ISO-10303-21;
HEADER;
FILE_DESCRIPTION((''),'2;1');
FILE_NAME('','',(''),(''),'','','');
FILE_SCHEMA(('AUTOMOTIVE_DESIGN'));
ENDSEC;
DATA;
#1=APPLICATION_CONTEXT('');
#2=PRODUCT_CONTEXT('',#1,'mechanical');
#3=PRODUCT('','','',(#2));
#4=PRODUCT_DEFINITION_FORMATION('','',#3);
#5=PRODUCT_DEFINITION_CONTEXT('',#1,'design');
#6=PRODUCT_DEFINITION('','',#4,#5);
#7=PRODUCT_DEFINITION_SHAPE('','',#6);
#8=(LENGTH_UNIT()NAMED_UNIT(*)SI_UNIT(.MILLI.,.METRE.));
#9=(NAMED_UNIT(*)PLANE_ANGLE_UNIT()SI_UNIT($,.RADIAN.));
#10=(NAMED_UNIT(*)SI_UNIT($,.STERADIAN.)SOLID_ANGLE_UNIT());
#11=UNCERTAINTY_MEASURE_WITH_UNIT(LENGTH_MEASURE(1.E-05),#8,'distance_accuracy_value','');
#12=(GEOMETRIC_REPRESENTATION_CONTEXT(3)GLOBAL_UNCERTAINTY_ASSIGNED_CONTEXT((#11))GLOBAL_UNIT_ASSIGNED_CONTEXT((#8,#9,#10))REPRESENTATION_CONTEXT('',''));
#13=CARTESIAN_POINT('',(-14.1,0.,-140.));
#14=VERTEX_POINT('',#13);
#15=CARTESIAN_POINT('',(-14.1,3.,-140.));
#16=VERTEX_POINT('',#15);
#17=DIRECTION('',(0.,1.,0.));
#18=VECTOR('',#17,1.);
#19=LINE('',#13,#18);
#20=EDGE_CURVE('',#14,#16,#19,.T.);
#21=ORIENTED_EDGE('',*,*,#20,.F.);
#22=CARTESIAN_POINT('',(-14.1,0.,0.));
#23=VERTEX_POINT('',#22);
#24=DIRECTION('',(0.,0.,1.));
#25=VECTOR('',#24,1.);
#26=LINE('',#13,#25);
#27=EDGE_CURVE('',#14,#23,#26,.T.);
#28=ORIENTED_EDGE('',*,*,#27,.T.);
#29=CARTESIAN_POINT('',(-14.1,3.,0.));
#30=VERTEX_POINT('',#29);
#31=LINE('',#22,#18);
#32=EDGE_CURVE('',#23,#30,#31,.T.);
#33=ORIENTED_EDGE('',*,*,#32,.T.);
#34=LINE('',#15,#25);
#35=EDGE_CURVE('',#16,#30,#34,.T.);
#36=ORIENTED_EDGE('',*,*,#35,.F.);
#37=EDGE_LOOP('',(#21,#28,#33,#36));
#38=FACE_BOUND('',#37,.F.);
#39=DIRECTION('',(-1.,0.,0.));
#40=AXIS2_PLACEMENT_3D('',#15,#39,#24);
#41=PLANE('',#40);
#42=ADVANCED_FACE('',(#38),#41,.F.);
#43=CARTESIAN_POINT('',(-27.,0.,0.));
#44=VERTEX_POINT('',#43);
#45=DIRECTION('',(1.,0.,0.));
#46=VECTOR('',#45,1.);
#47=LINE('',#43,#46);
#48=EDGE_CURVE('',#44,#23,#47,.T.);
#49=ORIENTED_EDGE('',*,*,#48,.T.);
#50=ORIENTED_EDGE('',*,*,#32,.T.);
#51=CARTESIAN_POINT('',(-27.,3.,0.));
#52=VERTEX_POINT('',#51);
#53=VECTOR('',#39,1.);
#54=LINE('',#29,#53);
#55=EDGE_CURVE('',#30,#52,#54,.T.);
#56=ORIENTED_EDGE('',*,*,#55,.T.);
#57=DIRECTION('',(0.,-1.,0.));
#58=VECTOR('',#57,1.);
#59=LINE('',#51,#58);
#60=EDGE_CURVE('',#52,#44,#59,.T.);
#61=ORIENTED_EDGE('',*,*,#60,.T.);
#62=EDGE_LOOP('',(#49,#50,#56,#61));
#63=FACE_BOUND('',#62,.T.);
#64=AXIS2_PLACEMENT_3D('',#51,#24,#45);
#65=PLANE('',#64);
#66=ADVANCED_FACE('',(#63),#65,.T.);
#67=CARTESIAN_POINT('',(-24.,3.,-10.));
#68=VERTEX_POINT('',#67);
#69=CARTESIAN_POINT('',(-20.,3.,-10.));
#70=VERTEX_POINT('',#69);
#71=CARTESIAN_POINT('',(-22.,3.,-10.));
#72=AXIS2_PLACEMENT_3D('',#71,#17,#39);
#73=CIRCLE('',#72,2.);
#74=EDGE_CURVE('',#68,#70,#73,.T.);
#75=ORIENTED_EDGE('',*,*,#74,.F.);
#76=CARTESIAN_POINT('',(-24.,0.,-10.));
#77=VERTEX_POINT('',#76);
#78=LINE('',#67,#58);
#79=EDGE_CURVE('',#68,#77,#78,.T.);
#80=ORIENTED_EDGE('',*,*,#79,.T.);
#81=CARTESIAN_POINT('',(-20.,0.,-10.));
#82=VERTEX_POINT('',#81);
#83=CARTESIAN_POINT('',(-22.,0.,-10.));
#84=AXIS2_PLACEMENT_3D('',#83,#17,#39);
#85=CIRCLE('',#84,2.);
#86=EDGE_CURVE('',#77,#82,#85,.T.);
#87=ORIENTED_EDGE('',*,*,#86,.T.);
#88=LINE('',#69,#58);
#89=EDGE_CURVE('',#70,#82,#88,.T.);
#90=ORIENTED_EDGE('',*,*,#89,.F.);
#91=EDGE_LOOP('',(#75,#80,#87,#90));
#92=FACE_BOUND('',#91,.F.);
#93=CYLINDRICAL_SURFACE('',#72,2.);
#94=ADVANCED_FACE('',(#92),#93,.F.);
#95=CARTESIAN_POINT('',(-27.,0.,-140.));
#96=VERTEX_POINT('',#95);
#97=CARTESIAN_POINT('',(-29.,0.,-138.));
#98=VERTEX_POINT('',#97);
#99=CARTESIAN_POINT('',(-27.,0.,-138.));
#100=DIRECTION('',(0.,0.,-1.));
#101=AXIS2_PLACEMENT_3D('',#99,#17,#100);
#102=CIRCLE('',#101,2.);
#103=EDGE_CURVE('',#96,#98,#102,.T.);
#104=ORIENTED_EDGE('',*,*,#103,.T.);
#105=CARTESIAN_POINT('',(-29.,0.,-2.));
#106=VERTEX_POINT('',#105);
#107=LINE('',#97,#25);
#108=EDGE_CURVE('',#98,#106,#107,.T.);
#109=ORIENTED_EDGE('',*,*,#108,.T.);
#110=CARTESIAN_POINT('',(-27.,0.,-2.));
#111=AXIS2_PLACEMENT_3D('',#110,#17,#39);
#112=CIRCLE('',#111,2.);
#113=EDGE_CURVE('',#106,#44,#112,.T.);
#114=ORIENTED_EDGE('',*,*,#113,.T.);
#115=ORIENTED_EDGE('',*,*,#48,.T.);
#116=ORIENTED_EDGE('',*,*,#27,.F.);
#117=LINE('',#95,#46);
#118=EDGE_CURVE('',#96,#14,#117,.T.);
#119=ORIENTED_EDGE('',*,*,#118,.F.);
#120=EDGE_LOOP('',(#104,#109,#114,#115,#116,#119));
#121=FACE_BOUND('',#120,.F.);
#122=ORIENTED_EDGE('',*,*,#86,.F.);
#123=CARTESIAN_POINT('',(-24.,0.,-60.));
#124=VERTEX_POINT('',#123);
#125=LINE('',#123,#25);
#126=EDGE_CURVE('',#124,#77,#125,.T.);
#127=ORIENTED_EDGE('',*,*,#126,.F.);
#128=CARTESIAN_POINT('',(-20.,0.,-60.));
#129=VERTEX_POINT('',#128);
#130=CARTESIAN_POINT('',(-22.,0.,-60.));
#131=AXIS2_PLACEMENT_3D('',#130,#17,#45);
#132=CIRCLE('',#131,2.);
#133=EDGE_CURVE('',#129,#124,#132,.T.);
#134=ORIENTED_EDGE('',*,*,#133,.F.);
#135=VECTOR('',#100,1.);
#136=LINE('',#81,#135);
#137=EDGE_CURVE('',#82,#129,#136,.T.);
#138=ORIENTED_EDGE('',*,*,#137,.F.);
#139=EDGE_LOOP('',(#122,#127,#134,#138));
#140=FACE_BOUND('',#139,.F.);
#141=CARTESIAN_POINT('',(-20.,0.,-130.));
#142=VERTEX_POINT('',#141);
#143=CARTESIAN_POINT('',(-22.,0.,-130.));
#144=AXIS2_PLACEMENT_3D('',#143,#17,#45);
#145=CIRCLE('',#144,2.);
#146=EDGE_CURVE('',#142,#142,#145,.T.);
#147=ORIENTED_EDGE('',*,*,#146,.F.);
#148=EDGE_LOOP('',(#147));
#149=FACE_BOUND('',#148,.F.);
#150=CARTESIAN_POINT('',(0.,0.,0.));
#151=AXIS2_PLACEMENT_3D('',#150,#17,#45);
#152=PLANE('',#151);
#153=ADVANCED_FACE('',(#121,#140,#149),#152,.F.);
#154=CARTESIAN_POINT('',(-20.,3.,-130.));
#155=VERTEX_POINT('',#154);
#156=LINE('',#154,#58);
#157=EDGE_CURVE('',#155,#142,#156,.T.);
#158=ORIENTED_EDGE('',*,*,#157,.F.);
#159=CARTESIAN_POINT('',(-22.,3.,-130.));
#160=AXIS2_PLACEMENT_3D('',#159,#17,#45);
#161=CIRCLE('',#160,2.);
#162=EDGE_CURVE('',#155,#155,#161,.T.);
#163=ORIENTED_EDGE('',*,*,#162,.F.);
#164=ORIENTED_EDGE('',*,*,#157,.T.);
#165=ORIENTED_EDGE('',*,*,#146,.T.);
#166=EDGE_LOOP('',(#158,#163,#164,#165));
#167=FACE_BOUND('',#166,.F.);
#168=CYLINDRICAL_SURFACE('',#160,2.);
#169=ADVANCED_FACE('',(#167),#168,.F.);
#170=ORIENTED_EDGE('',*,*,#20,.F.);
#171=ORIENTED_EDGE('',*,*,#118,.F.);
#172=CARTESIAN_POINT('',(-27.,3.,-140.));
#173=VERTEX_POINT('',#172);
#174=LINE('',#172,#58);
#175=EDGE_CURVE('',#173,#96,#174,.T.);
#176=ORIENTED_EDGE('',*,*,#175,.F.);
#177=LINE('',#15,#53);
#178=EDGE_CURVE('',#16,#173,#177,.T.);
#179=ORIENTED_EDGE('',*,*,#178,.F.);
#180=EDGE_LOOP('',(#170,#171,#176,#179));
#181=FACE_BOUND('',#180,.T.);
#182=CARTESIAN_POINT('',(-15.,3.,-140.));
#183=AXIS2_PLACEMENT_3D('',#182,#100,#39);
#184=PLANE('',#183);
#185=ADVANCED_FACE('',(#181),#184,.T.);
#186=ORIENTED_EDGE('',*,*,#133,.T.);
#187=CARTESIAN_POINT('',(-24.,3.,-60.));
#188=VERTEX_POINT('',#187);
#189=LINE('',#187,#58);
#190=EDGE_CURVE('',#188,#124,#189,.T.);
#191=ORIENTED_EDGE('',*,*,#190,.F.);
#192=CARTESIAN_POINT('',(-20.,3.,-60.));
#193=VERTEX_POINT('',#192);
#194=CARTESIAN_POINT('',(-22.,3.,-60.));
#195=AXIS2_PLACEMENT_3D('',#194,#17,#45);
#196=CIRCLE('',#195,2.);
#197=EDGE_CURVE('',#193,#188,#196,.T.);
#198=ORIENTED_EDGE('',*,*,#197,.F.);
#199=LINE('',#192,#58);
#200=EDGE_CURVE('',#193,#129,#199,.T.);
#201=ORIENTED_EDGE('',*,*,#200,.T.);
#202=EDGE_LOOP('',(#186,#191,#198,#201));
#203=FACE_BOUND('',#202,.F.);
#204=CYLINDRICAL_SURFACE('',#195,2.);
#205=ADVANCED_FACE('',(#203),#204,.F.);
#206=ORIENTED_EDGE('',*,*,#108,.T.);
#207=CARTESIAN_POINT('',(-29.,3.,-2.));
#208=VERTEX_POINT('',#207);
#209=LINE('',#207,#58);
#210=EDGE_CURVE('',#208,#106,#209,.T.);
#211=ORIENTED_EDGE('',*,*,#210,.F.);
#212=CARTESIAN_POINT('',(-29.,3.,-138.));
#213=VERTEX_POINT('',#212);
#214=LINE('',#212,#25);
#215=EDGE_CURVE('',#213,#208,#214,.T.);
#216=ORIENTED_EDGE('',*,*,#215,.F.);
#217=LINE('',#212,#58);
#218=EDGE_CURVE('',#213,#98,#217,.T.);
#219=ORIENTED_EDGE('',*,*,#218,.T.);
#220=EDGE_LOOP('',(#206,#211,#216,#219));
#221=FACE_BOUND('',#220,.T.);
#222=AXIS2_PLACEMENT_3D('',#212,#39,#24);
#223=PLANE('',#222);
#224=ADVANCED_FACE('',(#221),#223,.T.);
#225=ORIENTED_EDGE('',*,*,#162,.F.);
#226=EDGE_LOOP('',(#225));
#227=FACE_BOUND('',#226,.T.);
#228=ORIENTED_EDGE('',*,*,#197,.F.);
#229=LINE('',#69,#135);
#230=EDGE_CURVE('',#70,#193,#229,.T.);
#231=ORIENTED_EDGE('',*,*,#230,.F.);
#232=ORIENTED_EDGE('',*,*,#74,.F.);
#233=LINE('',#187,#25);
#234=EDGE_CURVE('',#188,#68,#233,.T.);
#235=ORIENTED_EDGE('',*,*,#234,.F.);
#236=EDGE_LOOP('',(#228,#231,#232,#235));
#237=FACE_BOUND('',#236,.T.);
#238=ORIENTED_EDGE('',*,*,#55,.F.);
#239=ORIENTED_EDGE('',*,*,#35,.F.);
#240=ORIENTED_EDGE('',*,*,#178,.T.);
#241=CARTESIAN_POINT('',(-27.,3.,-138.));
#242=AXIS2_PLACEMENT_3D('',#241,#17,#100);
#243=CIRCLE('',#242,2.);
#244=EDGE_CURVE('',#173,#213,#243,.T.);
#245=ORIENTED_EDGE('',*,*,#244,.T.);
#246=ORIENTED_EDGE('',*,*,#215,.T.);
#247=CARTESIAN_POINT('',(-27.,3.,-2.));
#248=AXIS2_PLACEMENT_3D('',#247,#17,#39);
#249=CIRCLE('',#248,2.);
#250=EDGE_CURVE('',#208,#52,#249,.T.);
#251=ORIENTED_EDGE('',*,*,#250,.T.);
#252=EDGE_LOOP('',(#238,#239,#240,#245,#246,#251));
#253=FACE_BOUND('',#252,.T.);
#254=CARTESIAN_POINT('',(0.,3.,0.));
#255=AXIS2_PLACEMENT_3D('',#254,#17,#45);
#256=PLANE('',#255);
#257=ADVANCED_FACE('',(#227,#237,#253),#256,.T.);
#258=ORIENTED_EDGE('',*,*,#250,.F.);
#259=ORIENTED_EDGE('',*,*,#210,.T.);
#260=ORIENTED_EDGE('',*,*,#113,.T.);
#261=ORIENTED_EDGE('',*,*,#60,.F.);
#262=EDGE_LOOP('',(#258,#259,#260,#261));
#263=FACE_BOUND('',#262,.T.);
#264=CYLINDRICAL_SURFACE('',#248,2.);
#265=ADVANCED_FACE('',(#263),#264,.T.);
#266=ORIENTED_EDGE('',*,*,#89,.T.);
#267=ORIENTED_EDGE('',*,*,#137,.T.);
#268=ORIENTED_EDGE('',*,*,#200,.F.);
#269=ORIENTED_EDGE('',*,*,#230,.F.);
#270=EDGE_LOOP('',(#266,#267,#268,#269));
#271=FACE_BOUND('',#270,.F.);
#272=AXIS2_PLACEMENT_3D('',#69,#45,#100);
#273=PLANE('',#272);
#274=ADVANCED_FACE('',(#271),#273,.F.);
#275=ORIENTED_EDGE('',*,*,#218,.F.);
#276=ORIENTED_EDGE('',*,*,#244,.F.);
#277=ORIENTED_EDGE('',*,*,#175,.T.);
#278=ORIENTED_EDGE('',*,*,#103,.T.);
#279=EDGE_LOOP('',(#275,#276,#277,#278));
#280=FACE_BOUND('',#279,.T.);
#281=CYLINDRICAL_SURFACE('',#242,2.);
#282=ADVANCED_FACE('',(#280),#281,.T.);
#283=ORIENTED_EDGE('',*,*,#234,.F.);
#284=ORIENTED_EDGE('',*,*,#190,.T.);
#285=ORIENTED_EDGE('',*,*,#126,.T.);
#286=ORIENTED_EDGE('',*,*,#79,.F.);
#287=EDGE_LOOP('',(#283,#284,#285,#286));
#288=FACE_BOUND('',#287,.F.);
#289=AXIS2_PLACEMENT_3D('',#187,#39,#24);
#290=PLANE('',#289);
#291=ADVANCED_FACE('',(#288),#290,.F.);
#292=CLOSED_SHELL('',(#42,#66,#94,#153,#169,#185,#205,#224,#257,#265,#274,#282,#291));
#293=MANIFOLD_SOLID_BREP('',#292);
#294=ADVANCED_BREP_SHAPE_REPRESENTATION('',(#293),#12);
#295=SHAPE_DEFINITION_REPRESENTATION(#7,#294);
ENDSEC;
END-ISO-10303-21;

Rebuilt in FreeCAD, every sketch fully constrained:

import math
import FreeCAD as App
import Part
import Sketcher


def add_polygon(sketch, points):
    """Adds a closed chain of lines whose ends are joined by coincident constraints."""
    first, n = sketch.GeometryCount, len(points)
    for a, b in zip(points, points[1:] + points[:1]):
        sketch.addGeometry(Part.LineSegment(App.Vector(*a, 0), App.Vector(*b, 0)), False)
    for i in range(n):
        sketch.addConstraint(Sketcher.Constraint("Coincident", first + i, 2, first + (i + 1) % n, 1))

doc = App.newDocument("Part")
params = doc.addObject("Spreadsheet::Sheet", "Params")
for row, (alias, value) in enumerate([
    ("sketch1_width", "6 mm"),
    ("sketch1_height", "140 mm"),
    ("sketch1_height2", "3 mm"),
    ("sketch1_width2", "8.1 mm"),
    ("pad1_length", "3 mm"),
    ("sketch2_width", "3 mm"),
    ("sketch2_height", "6 mm"),
    ("pocket1_length", "3 mm"),
    ("sketch3_diameter", "4 mm"),
    ("sketch3_height", "50 mm"),
    ("sketch3_height2", "140 mm"),
    ("pad2_length", "3 mm"),
    ("sketch4_width", "6 mm"),
    ("sketch4_height", "140 mm"),
    ("pocket2_length", "3 mm"),
    ("sketch5_width", "3 mm"),
    ("sketch5_height", "146 mm"),
    ("sketch5_height2", "6 mm"),
    ("sketch5_width2", "8.1 mm"),
    ("pocket3_length", "3 mm"),
], start=1):
    params.set(f"A{row}", alias)
    params.set(f"B{row}", "=" + value)
    params.setAlias(f"B{row}", alias)

body = doc.addObject("PartDesign::Body", "Body")

# Sketch on XZ plane
sketch1 = body.newObject("Sketcher::SketchObject", "Sketch")
sketch1.AttachmentSupport = (doc.getObject("XZ_Plane"), [""])
sketch1.MapMode = "FlatFace"
add_polygon(sketch1, [(-6, 0), (0, 0), (0, -140), (-6, -140), (-6, -143), (-14.1, -143), (-14.1, -140), (-15, -140), (-15, 0), (-14.1, 0), (-14.1, 3), (-6, 3)])  # lines 0-11
sketch1.addConstraint([
    Sketcher.Constraint("Horizontal", 0),
    Sketcher.Constraint("Vertical", 1),
    Sketcher.Constraint("Horizontal", 2),
    Sketcher.Constraint("Vertical", 3),
    Sketcher.Constraint("Horizontal", 4),
    Sketcher.Constraint("Vertical", 5),
    Sketcher.Constraint("Horizontal", 6),
    Sketcher.Constraint("Vertical", 7),
    Sketcher.Constraint("Horizontal", 8),
    Sketcher.Constraint("Vertical", 9),
    Sketcher.Constraint("Horizontal", 10),
    Sketcher.Constraint("Vertical", 11),
    Sketcher.Constraint("Coincident", 0, 2, -1, 1),
    Sketcher.Constraint("PointOnObject", 7, 2, -1),
    Sketcher.Constraint("Horizontal", 2, 2, 5, 2),
    Sketcher.Constraint("Vertical", 5, 2, 8, 2),
    Sketcher.Constraint("Vertical", 3, 2, 10, 2),
    Sketcher.Constraint("Equal", 5, 9),
    Sketcher.Constraint("DistanceX", 0, 1, 0, 2, 6.0),
    Sketcher.Constraint("DistanceY", 1, 2, 1, 1, 140.0),
    Sketcher.Constraint("DistanceY", 3, 2, 3, 1, 3.0),
    Sketcher.Constraint("DistanceX", 4, 2, 4, 1, 8.1),
    Sketcher.Constraint("DistanceX", 6, 2, -1, 1, 15.0),
])
sketch1.setExpression("Constraints[30]", "Params.sketch1_width")
sketch1.setExpression("Constraints[31]", "Params.sketch1_height")
sketch1.setExpression("Constraints[32]", "Params.sketch1_height2")
sketch1.setExpression("Constraints[33]", "Params.sketch1_width2")
pad1 = body.newObject("PartDesign::Pad", "Pad")
pad1.Profile = sketch1
pad1.setExpression("Length", "Params.pad1_length")
pad1.Reversed = True

# Sketch on XZ plane
sketch2 = body.newObject("Sketcher::SketchObject", "Sketch001")
sketch2.AttachmentSupport = (doc.getObject("XZ_Plane"), [""])
sketch2.MapMode = "FlatFace"
sketch2.AttachmentOffset = App.Placement(App.Vector(0, 0, -3), App.Rotation())
add_polygon(sketch2, [(-11, -7), (-11, -1), (-8, -1), (-8, -7)])  # lines 0-3
add_polygon(sketch2, [(-11, -139), (-11, -133), (-8, -133), (-8, -139)])  # lines 4-7
sketch2.addConstraint([
    Sketcher.Constraint("Vertical", 0),
    Sketcher.Constraint("Horizontal", 1),
    Sketcher.Constraint("Vertical", 2),
    Sketcher.Constraint("Horizontal", 3),
    Sketcher.Constraint("Vertical", 4),
    Sketcher.Constraint("Horizontal", 5),
    Sketcher.Constraint("Vertical", 6),
    Sketcher.Constraint("Horizontal", 7),
    Sketcher.Constraint("Vertical", 3, 2, 4, 2),
    Sketcher.Constraint("Vertical", 2, 2, 5, 2),
    Sketcher.Constraint("Equal", 2, 4),
    Sketcher.Constraint("DistanceX", 1, 1, 1, 2, 3.0),
    Sketcher.Constraint("DistanceY", 0, 1, 0, 2, 6.0),
    Sketcher.Constraint("DistanceY", 0, 2, -1, 1, 1.0),
    Sketcher.Constraint("DistanceX", 0, 2, -1, 1, 11.0),
    Sketcher.Constraint("DistanceY", 4, 2, -1, 1, 133.0),
])
sketch2.setExpression("Constraints[19]", "Params.sketch2_width")
sketch2.setExpression("Constraints[20]", "Params.sketch2_height")
pocket1 = body.newObject("PartDesign::Pocket", "Pocket")
pocket1.Profile = sketch2
pocket1.setExpression("Length", "Params.pocket1_length")
pocket1.Reversed = True

# Sketch on XZ plane
sketch3 = body.newObject("Sketcher::SketchObject", "Sketch002")
sketch3.AttachmentSupport = (doc.getObject("XZ_Plane"), [""])
sketch3.MapMode = "FlatFace"
sketch3.AttachmentOffset = App.Placement(App.Vector(0, 0, -3), App.Rotation())
sketch3.addGeometry([
    Part.ArcOfCircle(Part.Circle(App.Vector(-27, -2, 0), App.Vector(0, 0, 1), 2), math.radians(90), math.radians(180)),  # 0
    Part.LineSegment(App.Vector(-27, 0, 0), App.Vector(-15, 0, 0)),  # 1
    Part.LineSegment(App.Vector(-15, 0, 0), App.Vector(-15, -140, 0)),  # 2
    Part.LineSegment(App.Vector(-15, -140, 0), App.Vector(-27, -140, 0)),  # 3
    Part.ArcOfCircle(Part.Circle(App.Vector(-27, -138, 0), App.Vector(0, 0, 1), 2), math.radians(180), math.radians(270)),  # 4
    Part.LineSegment(App.Vector(-29, -138, 0), App.Vector(-29, -2, 0)),  # 5
    Part.LineSegment(App.Vector(-20, -60, 0), App.Vector(-20, -10, 0)),  # 6
    Part.ArcOfCircle(Part.Circle(App.Vector(-22, -10, 0), App.Vector(0, 0, 1), 2), math.radians(0), math.radians(180)),  # 7
    Part.LineSegment(App.Vector(-24, -10, 0), App.Vector(-24, -60, 0)),  # 8
    Part.ArcOfCircle(Part.Circle(App.Vector(-22, -60, 0), App.Vector(0, 0, 1), 2), math.radians(180), math.radians(360)),  # 9
    Part.Circle(App.Vector(-22, -130, 0), App.Vector(0, 0, 1), 2),  # 10
], False)
sketch3.addConstraint([
    Sketcher.Constraint("Tangent", 0, 1, 1, 1),
    Sketcher.Constraint("Coincident", 1, 2, 2, 1),
    Sketcher.Constraint("Coincident", 2, 2, 3, 1),
    Sketcher.Constraint("Tangent", 3, 2, 4, 2),
    Sketcher.Constraint("Tangent", 4, 1, 5, 1),
    Sketcher.Constraint("Tangent", 5, 2, 0, 2),
    Sketcher.Constraint("Tangent", 6, 2, 7, 1),
    Sketcher.Constraint("Tangent", 7, 2, 8, 1),
    Sketcher.Constraint("Tangent", 8, 2, 9, 1),
    Sketcher.Constraint("Tangent", 9, 2, 6, 1),
    Sketcher.Constraint("Horizontal", 1),
    Sketcher.Constraint("Vertical", 2),
    Sketcher.Constraint("Horizontal", 3),
    Sketcher.Constraint("Vertical", 5),
    Sketcher.Constraint("Vertical", 6),
    Sketcher.Constraint("Vertical", 8),
    Sketcher.Constraint("Equal", 0, 4),
    Sketcher.Constraint("Equal", 4, 7),
    Sketcher.Constraint("Equal", 9, 10),
    Sketcher.Constraint("PointOnObject", 0, 1, -1),
    Sketcher.Constraint("Vertical", 9, 3, 10, 3),
    Sketcher.Constraint("Diameter", 10, 4.0),
    Sketcher.Constraint("DistanceY", 6, 1, 6, 2, 50.0),
    Sketcher.Constraint("DistanceY", 7, 3, -1, 1, 10.0),
    Sketcher.Constraint("DistanceX", 0, 3, 7, 3, 5.0),
    Sketcher.Constraint("DistanceY", 2, 2, 10, 3, 10.0),
    Sketcher.Constraint("DistanceX", 4, 1, 2, 2, 14.0),
    Sketcher.Constraint("DistanceY", 2, 2, 2, 1, 140.0),
    Sketcher.Constraint("DistanceX", 0, 3, -1, 1, 27.0),
])
sketch3.setExpression("Constraints[21]", "Params.sketch3_diameter")
sketch3.setExpression("Constraints[22]", "Params.sketch3_height")
sketch3.setExpression("Constraints[27]", "Params.sketch3_height2")
pad2 = body.newObject("PartDesign::Pad", "Pad001")
pad2.Profile = sketch3
pad2.setExpression("Length", "Params.pad2_length")

# Sketch on XZ plane
sketch4 = body.newObject("Sketcher::SketchObject", "Sketch003")
sketch4.AttachmentSupport = (doc.getObject("XZ_Plane"), [""])
sketch4.MapMode = "FlatFace"
sketch4.AttachmentOffset = App.Placement(App.Vector(0, 0, -3), App.Rotation())
add_polygon(sketch4, [(-6, 0), (0, 0), (0, -140), (-6, -140)])  # lines 0-3
sketch4.addConstraint([
    Sketcher.Constraint("Horizontal", 0),
    Sketcher.Constraint("Vertical", 1),
    Sketcher.Constraint("Horizontal", 2),
    Sketcher.Constraint("Vertical", 3),
    Sketcher.Constraint("Coincident", 0, 2, -1, 1),
    Sketcher.Constraint("DistanceX", 0, 1, 0, 2, 6.0),
    Sketcher.Constraint("DistanceY", 1, 2, 1, 1, 140.0),
])
sketch4.setExpression("Constraints[9]", "Params.sketch4_width")
sketch4.setExpression("Constraints[10]", "Params.sketch4_height")
pocket2 = body.newObject("PartDesign::Pocket", "Pocket001")
pocket2.Profile = sketch4
pocket2.setExpression("Length", "Params.pocket2_length")
pocket2.Reversed = True

# Sketch on XZ plane
sketch5 = body.newObject("Sketcher::SketchObject", "Sketch004")
sketch5.AttachmentSupport = (doc.getObject("XZ_Plane"), [""])
sketch5.MapMode = "FlatFace"
sketch5.AttachmentOffset = App.Placement(App.Vector(0, 0, -3), App.Rotation())
add_polygon(sketch5, [(-14.1, -143), (-14.1, 3), (-6, 3), (-6, -143)])  # lines 0-3
add_polygon(sketch5, [(-11, -7), (-8, -7), (-8, -1), (-11, -1)])  # lines 4-7
add_polygon(sketch5, [(-8, -139), (-8, -133), (-11, -133), (-11, -139)])  # lines 8-11
sketch5.addConstraint([
    Sketcher.Constraint("Vertical", 0),
    Sketcher.Constraint("Horizontal", 1),
    Sketcher.Constraint("Vertical", 2),
    Sketcher.Constraint("Horizontal", 3),
    Sketcher.Constraint("Horizontal", 4),
    Sketcher.Constraint("Vertical", 5),
    Sketcher.Constraint("Horizontal", 6),
    Sketcher.Constraint("Vertical", 7),
    Sketcher.Constraint("Vertical", 8),
    Sketcher.Constraint("Horizontal", 9),
    Sketcher.Constraint("Vertical", 10),
    Sketcher.Constraint("Horizontal", 11),
    Sketcher.Constraint("Vertical", 5, 2, 8, 2),
    Sketcher.Constraint("Vertical", 7, 2, 9, 2),
    Sketcher.Constraint("Equal", 7, 8),
    Sketcher.Constraint("DistanceX", 4, 1, 4, 2, 3.0),
    Sketcher.Constraint("DistanceY", 0, 1, 0, 2, 146.0),
    Sketcher.Constraint("DistanceY", 5, 1, 5, 2, 6.0),
    Sketcher.Constraint("DistanceX", 1, 1, 1, 2, 8.1),
    Sketcher.Constraint("DistanceY", -1, 1, 0, 2, 3.0),
    Sketcher.Constraint("DistanceX", 1, 2, -1, 1, 6.0),
    Sketcher.Constraint("DistanceX", 4, 2, -1, 1, 8.0),
    Sketcher.Constraint("DistanceY", 4, 2, -1, 1, 7.0),
    Sketcher.Constraint("DistanceY", 8, 2, -1, 1, 133.0),
])
sketch5.setExpression("Constraints[27]", "Params.sketch5_width")
sketch5.setExpression("Constraints[28]", "Params.sketch5_height")
sketch5.setExpression("Constraints[29]", "Params.sketch5_height2")
sketch5.setExpression("Constraints[30]", "Params.sketch5_width2")
pocket3 = body.newObject("PartDesign::Pocket", "Pocket002")
pocket3.Profile = sketch5
pocket3.setExpression("Length", "Params.pocket3_length")
pocket3.Reversed = True

doc.recompute()
